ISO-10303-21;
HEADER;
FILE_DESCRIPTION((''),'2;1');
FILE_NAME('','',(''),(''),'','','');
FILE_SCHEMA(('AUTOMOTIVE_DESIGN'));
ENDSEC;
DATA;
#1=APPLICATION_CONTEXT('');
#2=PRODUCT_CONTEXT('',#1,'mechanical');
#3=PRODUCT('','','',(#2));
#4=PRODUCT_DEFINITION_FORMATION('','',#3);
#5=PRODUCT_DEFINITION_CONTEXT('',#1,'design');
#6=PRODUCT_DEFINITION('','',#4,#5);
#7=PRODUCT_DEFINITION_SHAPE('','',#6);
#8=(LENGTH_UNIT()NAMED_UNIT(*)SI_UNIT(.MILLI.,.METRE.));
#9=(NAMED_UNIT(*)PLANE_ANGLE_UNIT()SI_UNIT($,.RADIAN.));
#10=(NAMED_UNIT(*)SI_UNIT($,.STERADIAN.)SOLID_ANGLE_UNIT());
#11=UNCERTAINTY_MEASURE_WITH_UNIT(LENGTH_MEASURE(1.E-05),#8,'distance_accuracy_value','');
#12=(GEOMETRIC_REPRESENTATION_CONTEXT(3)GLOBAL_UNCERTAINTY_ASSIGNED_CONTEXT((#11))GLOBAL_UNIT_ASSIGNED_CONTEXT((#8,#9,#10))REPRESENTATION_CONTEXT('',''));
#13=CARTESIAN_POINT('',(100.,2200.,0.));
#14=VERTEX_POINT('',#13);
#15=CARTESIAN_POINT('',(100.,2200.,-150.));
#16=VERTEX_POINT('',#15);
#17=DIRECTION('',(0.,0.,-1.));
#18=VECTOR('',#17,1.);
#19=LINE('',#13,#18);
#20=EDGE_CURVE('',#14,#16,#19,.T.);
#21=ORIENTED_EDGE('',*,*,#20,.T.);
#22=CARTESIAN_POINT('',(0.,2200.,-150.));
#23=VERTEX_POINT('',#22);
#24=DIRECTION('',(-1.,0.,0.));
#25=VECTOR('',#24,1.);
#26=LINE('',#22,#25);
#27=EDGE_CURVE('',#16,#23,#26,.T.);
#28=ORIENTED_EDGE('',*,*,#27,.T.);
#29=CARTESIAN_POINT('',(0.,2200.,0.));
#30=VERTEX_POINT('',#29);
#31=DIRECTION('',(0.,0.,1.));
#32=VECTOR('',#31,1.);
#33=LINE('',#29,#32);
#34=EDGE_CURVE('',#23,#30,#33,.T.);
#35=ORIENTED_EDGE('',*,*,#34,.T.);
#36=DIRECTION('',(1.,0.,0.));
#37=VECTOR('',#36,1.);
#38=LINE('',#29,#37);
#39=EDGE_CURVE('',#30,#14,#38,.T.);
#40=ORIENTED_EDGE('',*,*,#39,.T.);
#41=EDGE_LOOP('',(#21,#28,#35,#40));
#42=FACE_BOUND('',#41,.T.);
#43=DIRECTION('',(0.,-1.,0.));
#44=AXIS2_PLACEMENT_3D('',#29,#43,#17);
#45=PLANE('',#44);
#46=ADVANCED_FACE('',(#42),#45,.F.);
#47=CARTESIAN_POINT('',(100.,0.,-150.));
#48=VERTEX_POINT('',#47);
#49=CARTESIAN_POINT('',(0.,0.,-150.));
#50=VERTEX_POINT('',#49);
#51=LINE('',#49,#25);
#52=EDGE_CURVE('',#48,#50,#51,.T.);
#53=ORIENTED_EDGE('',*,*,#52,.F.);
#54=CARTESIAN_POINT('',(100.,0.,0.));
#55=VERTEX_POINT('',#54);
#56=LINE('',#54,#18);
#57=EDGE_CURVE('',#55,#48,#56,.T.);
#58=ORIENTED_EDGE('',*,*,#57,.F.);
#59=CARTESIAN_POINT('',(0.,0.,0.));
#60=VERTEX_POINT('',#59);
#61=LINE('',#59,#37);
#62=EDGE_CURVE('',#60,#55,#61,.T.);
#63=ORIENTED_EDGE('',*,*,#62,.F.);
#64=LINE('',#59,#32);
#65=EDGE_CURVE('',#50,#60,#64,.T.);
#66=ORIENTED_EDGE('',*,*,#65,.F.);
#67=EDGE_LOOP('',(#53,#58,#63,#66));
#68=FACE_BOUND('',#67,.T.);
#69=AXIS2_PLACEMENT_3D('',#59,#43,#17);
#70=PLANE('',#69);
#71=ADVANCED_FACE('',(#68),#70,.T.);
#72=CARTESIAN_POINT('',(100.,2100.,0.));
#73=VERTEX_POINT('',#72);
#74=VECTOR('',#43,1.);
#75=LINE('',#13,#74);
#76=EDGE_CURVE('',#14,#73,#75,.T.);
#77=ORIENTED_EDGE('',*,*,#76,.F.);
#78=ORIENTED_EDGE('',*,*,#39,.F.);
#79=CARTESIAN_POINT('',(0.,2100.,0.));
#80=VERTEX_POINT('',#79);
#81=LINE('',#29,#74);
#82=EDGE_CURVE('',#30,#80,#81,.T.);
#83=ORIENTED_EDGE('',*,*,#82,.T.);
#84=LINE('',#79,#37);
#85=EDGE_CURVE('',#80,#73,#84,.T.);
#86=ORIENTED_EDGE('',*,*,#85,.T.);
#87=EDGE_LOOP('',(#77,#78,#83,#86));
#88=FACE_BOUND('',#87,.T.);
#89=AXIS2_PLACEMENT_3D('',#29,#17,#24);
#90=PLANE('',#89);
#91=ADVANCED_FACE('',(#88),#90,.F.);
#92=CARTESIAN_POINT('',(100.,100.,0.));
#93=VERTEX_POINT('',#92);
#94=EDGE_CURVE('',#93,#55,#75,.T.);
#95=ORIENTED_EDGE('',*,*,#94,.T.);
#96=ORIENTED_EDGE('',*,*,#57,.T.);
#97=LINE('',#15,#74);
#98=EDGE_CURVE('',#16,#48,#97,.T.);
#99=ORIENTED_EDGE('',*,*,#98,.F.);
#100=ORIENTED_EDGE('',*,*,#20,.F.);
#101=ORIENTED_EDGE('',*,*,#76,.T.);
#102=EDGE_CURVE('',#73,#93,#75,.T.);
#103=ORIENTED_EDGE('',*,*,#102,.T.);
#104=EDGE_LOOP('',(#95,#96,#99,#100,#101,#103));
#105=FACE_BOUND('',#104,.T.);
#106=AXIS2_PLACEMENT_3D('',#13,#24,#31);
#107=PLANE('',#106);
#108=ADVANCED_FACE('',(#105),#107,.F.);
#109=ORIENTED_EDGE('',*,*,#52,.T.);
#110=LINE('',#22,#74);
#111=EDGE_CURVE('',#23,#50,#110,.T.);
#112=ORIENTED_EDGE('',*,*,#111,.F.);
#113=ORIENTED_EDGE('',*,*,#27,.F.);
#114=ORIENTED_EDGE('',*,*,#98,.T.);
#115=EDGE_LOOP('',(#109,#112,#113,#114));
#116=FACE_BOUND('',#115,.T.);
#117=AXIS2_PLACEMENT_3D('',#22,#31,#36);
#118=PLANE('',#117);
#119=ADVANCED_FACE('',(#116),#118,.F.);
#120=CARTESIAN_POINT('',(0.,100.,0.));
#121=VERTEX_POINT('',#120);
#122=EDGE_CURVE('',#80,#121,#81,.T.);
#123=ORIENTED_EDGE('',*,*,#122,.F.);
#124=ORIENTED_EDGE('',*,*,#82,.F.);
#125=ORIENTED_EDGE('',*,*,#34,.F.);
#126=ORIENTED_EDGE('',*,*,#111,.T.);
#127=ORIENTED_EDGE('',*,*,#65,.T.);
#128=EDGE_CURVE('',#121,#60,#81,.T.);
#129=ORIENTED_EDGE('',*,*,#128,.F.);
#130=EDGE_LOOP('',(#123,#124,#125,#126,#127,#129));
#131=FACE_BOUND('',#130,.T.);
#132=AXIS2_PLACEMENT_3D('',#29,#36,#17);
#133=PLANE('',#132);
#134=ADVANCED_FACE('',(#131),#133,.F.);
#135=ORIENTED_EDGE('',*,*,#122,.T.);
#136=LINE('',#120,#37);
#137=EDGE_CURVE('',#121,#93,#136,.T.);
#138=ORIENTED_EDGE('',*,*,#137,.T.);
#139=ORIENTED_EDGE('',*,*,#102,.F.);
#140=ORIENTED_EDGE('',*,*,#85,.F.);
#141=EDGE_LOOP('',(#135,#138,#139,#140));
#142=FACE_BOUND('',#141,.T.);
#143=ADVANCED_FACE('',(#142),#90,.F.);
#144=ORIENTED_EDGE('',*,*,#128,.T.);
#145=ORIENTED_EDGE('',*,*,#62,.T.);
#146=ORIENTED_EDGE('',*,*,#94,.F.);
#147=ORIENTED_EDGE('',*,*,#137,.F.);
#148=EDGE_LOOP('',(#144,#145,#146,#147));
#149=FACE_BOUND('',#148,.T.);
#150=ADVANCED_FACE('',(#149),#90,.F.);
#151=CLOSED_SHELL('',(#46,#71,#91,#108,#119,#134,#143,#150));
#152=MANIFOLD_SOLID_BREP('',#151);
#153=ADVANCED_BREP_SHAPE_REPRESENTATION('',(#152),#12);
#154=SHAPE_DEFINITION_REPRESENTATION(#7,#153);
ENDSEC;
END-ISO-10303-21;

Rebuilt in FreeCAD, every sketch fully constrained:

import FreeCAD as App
import Part
import Sketcher
from FreeCAD import Vector
Q = App.Units.Quantity


def add_polygon(sketch, points):
    """Adds a closed chain of lines whose ends are joined by coincident constraints."""
    first, n = sketch.GeometryCount, len(points)
    for a, b in zip(points, points[1:] + points[:1]):
        sketch.addGeometry(Part.LineSegment(App.Vector(*a, 0), App.Vector(*b, 0)), False)
    for i in range(n):
        sketch.addConstraint(Sketcher.Constraint("Coincident", first + i, 2, first + (i + 1) % n, 1))

doc = App.newDocument("Part")
body = doc.addObject("PartDesign::Body", "Body")

sketch1 = body.newObject("Sketcher::SketchObject", "Sketch")
sketch1.AttachmentSupport = (doc.getObject("XZ_Plane"), [""])
sketch1.MapMode = "FlatFace"
add_polygon(sketch1, [(0, -150), (0, 0), (100, 0), (100, -150)])
sketch1.addConstraint([
    Sketcher.Constraint("Vertical", 0),
    Sketcher.Constraint("Horizontal", 1),
    Sketcher.Constraint("Vertical", 2),
    Sketcher.Constraint("Horizontal", 3),
    Sketcher.Constraint("Coincident", 0, 2, -1, 1),
    Sketcher.Constraint("DistanceX", 1, 1, 1, 2, Q("100 mm")),
    Sketcher.Constraint("DistanceY", 0, 1, 0, 2, Q("150 mm")),
])
pad1 = body.newObject("PartDesign::Pad", "Pad")
pad1.Profile = sketch1
pad1.Length = 2200
pad1.Reversed = True

doc.recompute()
